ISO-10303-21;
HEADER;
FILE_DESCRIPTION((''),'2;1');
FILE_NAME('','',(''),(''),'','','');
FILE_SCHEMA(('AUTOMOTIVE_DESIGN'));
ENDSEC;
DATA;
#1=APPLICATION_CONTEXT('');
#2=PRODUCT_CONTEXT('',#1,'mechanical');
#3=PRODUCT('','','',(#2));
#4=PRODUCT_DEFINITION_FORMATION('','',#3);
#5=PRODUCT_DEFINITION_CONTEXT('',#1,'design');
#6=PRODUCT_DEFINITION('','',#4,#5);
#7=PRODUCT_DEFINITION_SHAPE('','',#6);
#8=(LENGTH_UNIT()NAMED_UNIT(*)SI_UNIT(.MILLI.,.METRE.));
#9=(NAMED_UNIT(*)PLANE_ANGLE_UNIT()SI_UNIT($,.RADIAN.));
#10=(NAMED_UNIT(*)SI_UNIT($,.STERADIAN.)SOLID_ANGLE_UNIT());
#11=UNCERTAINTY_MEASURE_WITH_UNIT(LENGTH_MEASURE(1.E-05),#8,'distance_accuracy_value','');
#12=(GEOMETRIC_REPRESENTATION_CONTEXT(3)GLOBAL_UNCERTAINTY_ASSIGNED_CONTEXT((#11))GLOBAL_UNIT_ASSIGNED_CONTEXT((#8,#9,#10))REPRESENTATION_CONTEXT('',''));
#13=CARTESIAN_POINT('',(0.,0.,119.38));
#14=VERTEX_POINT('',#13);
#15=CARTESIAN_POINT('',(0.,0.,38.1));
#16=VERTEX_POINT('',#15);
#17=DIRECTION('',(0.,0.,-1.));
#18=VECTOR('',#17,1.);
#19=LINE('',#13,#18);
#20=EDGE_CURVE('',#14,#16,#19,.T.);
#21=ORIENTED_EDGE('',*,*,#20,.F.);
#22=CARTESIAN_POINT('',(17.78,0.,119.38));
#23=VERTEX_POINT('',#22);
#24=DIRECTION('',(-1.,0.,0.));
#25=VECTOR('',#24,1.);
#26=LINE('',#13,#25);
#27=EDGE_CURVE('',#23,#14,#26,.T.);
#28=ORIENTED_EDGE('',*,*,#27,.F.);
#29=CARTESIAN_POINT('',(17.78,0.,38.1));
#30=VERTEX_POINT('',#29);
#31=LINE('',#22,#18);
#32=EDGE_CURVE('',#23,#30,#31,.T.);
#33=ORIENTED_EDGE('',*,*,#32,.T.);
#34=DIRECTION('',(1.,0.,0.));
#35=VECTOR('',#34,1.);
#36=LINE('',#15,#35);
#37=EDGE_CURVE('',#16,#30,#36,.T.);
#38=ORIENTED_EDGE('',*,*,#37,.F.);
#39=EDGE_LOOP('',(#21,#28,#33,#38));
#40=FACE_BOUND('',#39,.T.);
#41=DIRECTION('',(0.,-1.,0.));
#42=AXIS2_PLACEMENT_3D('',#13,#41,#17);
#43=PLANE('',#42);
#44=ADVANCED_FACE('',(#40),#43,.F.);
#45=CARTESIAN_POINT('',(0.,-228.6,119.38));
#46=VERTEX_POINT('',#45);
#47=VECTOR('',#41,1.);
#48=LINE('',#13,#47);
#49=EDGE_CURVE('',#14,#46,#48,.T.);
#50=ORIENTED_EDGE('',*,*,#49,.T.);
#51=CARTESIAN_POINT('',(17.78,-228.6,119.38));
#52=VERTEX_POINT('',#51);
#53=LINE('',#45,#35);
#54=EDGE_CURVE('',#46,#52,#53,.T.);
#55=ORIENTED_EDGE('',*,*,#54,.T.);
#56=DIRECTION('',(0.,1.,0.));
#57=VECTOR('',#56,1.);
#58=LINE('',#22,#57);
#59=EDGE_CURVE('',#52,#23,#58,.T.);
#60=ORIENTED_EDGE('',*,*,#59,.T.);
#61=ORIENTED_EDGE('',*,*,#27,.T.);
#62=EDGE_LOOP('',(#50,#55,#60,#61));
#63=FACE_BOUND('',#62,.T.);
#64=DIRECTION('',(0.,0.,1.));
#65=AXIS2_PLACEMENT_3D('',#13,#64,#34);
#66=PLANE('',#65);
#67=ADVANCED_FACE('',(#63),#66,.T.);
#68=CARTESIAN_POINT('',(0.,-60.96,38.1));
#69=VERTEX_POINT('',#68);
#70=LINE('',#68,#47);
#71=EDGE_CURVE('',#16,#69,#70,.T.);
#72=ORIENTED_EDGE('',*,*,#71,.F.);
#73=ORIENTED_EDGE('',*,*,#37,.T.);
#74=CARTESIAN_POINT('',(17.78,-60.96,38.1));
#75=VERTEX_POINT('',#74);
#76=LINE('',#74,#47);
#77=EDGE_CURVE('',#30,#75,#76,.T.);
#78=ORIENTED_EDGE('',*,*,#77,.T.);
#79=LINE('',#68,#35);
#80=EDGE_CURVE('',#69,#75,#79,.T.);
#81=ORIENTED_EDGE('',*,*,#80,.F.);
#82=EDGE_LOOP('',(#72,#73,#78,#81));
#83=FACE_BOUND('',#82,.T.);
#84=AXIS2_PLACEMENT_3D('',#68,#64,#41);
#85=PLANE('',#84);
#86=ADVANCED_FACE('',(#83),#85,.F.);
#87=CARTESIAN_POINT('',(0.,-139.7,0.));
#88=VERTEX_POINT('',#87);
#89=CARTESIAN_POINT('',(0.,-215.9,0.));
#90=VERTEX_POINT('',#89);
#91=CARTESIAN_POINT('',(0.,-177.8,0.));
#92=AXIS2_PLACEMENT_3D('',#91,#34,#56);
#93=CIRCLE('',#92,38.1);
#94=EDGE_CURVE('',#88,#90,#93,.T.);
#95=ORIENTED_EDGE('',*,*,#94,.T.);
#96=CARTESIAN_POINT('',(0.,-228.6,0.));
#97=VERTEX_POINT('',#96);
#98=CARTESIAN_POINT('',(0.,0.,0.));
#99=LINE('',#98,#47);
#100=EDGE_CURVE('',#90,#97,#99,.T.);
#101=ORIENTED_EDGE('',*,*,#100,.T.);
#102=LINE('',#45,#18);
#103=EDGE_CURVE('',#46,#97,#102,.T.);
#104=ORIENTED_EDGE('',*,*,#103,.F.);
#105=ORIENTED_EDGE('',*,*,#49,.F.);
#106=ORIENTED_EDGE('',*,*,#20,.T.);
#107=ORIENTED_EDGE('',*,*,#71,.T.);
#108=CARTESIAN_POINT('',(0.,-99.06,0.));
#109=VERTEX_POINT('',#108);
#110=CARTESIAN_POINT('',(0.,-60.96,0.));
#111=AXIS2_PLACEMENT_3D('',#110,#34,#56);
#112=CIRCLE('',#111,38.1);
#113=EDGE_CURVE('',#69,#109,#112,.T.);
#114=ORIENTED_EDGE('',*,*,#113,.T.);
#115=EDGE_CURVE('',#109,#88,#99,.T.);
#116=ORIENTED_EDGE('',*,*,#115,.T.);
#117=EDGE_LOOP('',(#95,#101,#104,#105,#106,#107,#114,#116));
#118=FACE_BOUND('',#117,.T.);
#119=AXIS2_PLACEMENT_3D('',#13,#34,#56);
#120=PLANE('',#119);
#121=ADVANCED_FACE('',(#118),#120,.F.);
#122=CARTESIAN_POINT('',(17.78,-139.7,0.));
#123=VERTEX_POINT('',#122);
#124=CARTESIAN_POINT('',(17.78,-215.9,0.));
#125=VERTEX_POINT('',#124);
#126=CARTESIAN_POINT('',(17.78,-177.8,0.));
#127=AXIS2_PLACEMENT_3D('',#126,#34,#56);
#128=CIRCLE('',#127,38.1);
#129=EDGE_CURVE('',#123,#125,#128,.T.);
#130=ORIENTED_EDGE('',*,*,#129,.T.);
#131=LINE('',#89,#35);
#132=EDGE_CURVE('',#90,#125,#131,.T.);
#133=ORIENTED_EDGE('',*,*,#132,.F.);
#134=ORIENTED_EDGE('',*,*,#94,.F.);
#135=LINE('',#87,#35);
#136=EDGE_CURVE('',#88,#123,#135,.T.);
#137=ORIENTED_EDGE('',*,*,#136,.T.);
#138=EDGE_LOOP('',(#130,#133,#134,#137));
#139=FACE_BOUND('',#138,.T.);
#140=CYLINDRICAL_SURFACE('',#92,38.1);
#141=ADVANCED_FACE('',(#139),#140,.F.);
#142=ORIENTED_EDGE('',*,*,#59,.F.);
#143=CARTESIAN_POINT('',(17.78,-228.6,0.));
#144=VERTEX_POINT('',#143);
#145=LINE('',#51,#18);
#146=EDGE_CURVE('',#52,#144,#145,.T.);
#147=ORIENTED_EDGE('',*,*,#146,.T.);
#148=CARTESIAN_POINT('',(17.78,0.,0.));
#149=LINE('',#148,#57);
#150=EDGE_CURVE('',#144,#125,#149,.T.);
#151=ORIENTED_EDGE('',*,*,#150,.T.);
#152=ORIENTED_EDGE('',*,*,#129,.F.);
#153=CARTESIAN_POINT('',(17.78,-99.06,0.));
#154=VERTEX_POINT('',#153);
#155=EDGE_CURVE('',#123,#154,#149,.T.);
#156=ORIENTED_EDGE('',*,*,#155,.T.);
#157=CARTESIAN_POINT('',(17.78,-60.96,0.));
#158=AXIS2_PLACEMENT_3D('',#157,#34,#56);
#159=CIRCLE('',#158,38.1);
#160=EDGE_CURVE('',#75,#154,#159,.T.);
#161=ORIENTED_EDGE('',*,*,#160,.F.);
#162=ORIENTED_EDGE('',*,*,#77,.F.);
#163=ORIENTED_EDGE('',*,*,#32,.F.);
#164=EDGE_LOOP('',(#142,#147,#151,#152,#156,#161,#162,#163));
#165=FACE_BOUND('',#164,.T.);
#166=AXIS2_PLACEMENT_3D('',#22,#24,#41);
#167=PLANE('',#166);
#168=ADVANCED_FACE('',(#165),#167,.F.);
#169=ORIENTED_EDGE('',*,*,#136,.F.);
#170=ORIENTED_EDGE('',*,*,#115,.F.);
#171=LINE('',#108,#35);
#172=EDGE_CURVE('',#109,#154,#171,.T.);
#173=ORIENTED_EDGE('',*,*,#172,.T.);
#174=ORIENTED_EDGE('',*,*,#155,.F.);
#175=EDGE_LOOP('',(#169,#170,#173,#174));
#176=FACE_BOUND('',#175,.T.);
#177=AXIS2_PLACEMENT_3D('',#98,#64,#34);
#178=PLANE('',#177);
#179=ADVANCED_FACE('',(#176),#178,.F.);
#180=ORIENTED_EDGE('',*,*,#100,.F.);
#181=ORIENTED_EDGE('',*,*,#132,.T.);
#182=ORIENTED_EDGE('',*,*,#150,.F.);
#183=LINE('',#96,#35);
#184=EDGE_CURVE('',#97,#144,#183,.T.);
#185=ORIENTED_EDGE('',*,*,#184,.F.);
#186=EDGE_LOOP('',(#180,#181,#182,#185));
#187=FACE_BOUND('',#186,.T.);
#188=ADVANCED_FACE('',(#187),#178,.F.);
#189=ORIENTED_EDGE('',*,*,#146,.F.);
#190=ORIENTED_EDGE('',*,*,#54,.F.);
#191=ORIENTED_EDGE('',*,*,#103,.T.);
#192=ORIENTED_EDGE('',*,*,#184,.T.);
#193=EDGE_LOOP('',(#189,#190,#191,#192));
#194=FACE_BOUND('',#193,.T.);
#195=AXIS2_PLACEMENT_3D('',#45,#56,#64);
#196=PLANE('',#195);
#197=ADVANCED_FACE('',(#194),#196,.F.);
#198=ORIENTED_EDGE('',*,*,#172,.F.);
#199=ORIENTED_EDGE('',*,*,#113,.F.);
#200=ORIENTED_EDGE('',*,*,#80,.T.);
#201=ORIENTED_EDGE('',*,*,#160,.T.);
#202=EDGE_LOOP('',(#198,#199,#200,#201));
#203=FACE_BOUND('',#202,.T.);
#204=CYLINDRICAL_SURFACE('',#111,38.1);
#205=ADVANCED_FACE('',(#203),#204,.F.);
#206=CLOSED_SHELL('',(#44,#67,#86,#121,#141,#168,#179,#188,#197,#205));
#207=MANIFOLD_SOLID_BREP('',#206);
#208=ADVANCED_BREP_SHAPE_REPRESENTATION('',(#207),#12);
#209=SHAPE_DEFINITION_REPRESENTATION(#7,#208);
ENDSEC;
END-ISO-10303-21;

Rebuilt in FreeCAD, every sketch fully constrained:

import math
import FreeCAD as App
import Part
import Sketcher
Q = App.Units.Quantity

doc = App.newDocument("Part")
body = doc.addObject("PartDesign::Body", "Body")

# Sketch on XY plane
sketch1 = doc.addObject("Sketcher::SketchObject", "Sketch")
body.addObject(sketch1)
sketch1.AttachmentSupport = (doc.XY_Plane, [""])
sketch1.MapMode = "FlatFace"
sketch1.addGeometry([
    Part.LineSegment(App.Vector(0, 0, 0), App.Vector(0, -229, 0)),
    Part.LineSegment(App.Vector(0, -229, 0), App.Vector(18, -229, 0)),
    Part.LineSegment(App.Vector(18, -229, 0), App.Vector(18, 0, 0)),
    Part.LineSegment(App.Vector(18, 0, 0), App.Vector(0, 0, 0)),
], False)
sketch1.addConstraint([
    Sketcher.Constraint("Coincident", 0, 2, 1, 1),
    Sketcher.Constraint("Coincident", 1, 2, 2, 1),
    Sketcher.Constraint("Coincident", 2, 2, 3, 1),
    Sketcher.Constraint("Coincident", 3, 2, 0, 1),
    Sketcher.Constraint("Vertical", 0),
    Sketcher.Constraint("Horizontal", 1),
    Sketcher.Constraint("Vertical", 2),
    Sketcher.Constraint("Horizontal", 3),
    Sketcher.Constraint("Coincident", 3, 2, -1, 1),
    Sketcher.Constraint("DistanceY", 0, 2, 0, 1, Q("9 in")),
    Sketcher.Constraint("DistanceX", 1, 1, 1, 2, Q("0.7 in")),
])
pad1 = doc.addObject("PartDesign::Pad", "Pad")
body.addObject(pad1)
pad1.Profile = sketch1
pad1.Length = Q("4.7 in")

# Sketch on YZ plane
sketch2 = doc.addObject("Sketcher::SketchObject", "Sketch001")
body.addObject(sketch2)
sketch2.AttachmentSupport = (doc.YZ_Plane, [""])
sketch2.MapMode = "FlatFace"
sketch2.AttachmentOffset = App.Placement(App.Vector(0, 0, 0.7 * 25.4), App.Rotation())
sketch2.addGeometry([
    Part.LineSegment(App.Vector(0, 38, 0), App.Vector(-61, 38, 0)),  # 0
    Part.ArcOfCircle(Part.Circle(App.Vector(-61, 0, 0), App.Vector(0, 0, 1), 38), math.radians(90), math.radians(180)),  # 1
    Part.LineSegment(App.Vector(-99, 0, 0), App.Vector(0, 0, 0)),  # 2
    Part.LineSegment(App.Vector(0, 0, 0), App.Vector(0, 38, 0)),  # 3
    Part.LineSegment(App.Vector(-216, 0, 0), App.Vector(-140, 0, 0)),  # 4
    Part.ArcOfCircle(Part.Circle(App.Vector(-178, 0, 0), App.Vector(0, 0, 1), 38), math.radians(0), math.radians(180)),  # 5
], False)
sketch2.addConstraint([
    Sketcher.Constraint("Tangent", 0, 2, 1, 1),
    Sketcher.Constraint("Coincident", 1, 2, 2, 1),
    Sketcher.Constraint("Coincident", 2, 2, 3, 1),
    Sketcher.Constraint("Coincident", 3, 2, 0, 1),
    Sketcher.Constraint("Coincident", 4, 1, 5, 2),
    Sketcher.Constraint("Coincident", 5, 1, 4, 2),
    Sketcher.Constraint("Horizontal", 0),
    Sketcher.Constraint("Horizontal", 2),
    Sketcher.Constraint("Vertical", 3),
    Sketcher.Constraint("Horizontal", 4),
    Sketcher.Constraint("Coincident", 2, 2, -1, 1),
    Sketcher.Constraint("Equal", 1, 5),
    Sketcher.Constraint("PointOnObject", 1, 3, -1),
    Sketcher.Constraint("PointOnObject", 5, 3, -1),
    Sketcher.Constraint("PointOnObject", 4, 1, -1),
    Sketcher.Constraint("Radius", 1, Q("1.5 in")),
    Sketcher.Constraint("DistanceX", 0, 2, 0, 1, Q("2.4 in")),
    Sketcher.Constraint("DistanceX", 5, 3, -1, 1, Q("7 in")),
])
pocket1 = doc.addObject("PartDesign::Pocket", "Pocket")
body.addObject(pocket1)
pocket1.Profile = sketch2
pocket1.Type = "ThroughAll"

doc.recompute()
